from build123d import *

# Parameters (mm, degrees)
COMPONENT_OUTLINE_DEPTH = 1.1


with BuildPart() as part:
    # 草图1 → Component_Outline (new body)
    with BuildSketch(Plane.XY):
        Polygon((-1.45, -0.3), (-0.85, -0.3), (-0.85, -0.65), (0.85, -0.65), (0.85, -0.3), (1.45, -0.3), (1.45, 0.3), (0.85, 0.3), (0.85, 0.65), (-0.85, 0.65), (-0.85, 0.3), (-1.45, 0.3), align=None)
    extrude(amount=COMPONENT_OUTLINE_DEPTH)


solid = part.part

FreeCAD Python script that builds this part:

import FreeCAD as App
import Part
import Sketcher
Q = App.Units.Quantity

doc = App.newDocument("Part")
body = doc.addObject("PartDesign::Body", "Body")

sketch1 = body.newObject("Sketcher::SketchObject", "Sketch")
sketch1.AttachmentSupport = (doc.getObject("XY_Plane"), [""])
sketch1.MapMode = "FlatFace"
sketch1.addGeometry(Part.LineSegment(App.Vector(-1.45, -0.3, 0), App.Vector(-0.85, -0.3, 0)), False)
sketch1.addGeometry(Part.LineSegment(App.Vector(-0.85, -0.3, 0), App.Vector(-0.85, -0.65, 0)), False)
sketch1.addGeometry(Part.LineSegment(App.Vector(-0.85, -0.65, 0), App.Vector(0.85, -0.65, 0)), False)
sketch1.addGeometry(Part.LineSegment(App.Vector(0.85, -0.65, 0), App.Vector(0.85, -0.3, 0)), False)
sketch1.addGeometry(Part.LineSegment(App.Vector(0.85, -0.3, 0), App.Vector(1.45, -0.3, 0)), False)
sketch1.addGeometry(Part.LineSegment(App.Vector(1.45, -0.3, 0), App.Vector(1.45, 0.3, 0)), False)
sketch1.addGeometry(Part.LineSegment(App.Vector(1.45, 0.3, 0), App.Vector(0.85, 0.3, 0)), False)
sketch1.addGeometry(Part.LineSegment(App.Vector(0.85, 0.3, 0), App.Vector(0.85, 0.65, 0)), False)
sketch1.addGeometry(Part.LineSegment(App.Vector(0.85, 0.65, 0), App.Vector(-0.85, 0.65, 0)), False)
sketch1.addGeometry(Part.LineSegment(App.Vector(-0.85, 0.65, 0), App.Vector(-0.85, 0.3, 0)), False)
sketch1.addGeometry(Part.LineSegment(App.Vector(-0.85, 0.3, 0), App.Vector(-1.45, 0.3, 0)), False)
sketch1.addGeometry(Part.LineSegment(App.Vector(-1.45, 0.3, 0), App.Vector(-1.45, -0.3, 0)), False)
sketch1.addConstraint(Sketcher.Constraint("Coincident", 0, 2, 1, 1))
sketch1.addConstraint(Sketcher.Constraint("Coincident", 1, 2, 2, 1))
sketch1.addConstraint(Sketcher.Constraint("Coincident", 2, 2, 3, 1))
sketch1.addConstraint(Sketcher.Constraint("Coincident", 3, 2, 4, 1))
sketch1.addConstraint(Sketcher.Constraint("Coincident", 4, 2, 5, 1))
sketch1.addConstraint(Sketcher.Constraint("Coincident", 5, 2, 6, 1))
sketch1.addConstraint(Sketcher.Constraint("Coincident", 6, 2, 7, 1))
sketch1.addConstraint(Sketcher.Constraint("Coincident", 7, 2, 8, 1))
sketch1.addConstraint(Sketcher.Constraint("Coincident", 8, 2, 9, 1))
sketch1.addConstraint(Sketcher.Constraint("Coincident", 9, 2, 10, 1))
sketch1.addConstraint(Sketcher.Constraint("Coincident", 10, 2, 11, 1))
sketch1.addConstraint(Sketcher.Constraint("Coincident", 11, 2, 0, 1))
sketch1.addConstraint(Sketcher.Constraint("Horizontal", 0))
sketch1.addConstraint(Sketcher.Constraint("Vertical", 1))
sketch1.addConstraint(Sketcher.Constraint("Horizontal", 2))
sketch1.addConstraint(Sketcher.Constraint("Vertical", 3))
sketch1.addConstraint(Sketcher.Constraint("Horizontal", 4))
sketch1.addConstraint(Sketcher.Constraint("Vertical", 5))
sketch1.addConstraint(Sketcher.Constraint("Horizontal", 6))
sketch1.addConstraint(Sketcher.Constraint("Vertical", 7))
sketch1.addConstraint(Sketcher.Constraint("Horizontal", 8))
sketch1.addConstraint(Sketcher.Constraint("Vertical", 9))
sketch1.addConstraint(Sketcher.Constraint("Horizontal", 10))
sketch1.addConstraint(Sketcher.Constraint("Vertical", 11))
sketch1.addConstraint(Sketcher.Constraint("Symmetric", 0, 2, 6, 2, -1, 1))
sketch1.addConstraint(Sketcher.Constraint("Symmetric", 2, 2, 8, 2, -1, 1))
sketch1.addConstraint(Sketcher.Constraint("Symmetric", 4, 2, 10, 2, -1, 1))
sketch1.addConstraint(Sketcher.Constraint("Symmetric", 0, 2, 3, 2, -2))
sketch1.addConstraint(Sketcher.Constraint("Equal", 10, 5))
sketch1.addConstraint(Sketcher.Constraint("DistanceX", 0, 1, 0, 2, Q("0.6 mm")))
sketch1.addConstraint(Sketcher.Constraint("DistanceX", 2, 1, 2, 2, Q("1.7 mm")))
sketch1.addConstraint(Sketcher.Constraint("DistanceY", 1, 2, 1, 1, Q("0.35 mm")))
pad1 = body.newObject("PartDesign::Pad", "Pad")
pad1.Profile = sketch1
pad1.Length = 1.1

doc.recompute()
